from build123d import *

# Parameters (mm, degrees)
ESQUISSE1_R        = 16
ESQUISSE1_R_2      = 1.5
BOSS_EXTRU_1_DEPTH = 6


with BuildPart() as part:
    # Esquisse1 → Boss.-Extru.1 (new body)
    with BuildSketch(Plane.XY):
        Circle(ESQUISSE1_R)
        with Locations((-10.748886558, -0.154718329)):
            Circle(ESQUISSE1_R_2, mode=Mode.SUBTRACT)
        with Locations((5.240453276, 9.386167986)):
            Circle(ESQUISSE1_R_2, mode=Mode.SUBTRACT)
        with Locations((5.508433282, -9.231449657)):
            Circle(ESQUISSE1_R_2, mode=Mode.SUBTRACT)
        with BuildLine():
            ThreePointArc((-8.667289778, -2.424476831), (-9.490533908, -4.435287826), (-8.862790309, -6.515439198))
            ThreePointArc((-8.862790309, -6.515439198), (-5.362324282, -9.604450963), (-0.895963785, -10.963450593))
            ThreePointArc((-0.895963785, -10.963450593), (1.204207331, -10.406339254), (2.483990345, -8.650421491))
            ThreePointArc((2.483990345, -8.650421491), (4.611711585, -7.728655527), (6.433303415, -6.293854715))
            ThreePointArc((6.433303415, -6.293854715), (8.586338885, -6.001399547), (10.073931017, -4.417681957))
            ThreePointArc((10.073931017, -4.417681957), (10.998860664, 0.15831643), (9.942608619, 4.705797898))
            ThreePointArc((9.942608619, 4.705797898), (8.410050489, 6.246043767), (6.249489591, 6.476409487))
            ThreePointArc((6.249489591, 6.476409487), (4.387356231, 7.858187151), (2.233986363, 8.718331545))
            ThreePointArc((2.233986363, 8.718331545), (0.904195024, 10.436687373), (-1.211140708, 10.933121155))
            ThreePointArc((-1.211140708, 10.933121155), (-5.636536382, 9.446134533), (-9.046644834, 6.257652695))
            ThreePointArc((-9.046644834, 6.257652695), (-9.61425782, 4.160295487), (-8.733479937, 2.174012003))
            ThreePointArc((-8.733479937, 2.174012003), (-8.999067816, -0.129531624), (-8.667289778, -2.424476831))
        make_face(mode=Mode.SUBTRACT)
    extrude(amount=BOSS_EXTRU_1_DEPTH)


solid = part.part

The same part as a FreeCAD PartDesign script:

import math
import FreeCAD as App
import Part
import Sketcher

V = App.Vector

doc = App.newDocument("Part")
params = doc.addObject("Spreadsheet::Sheet", "Params")
for row, (alias, value) in enumerate([
    ("sketch1_diameter", "32 mm"),
    ("sketch1_diameter2", "3 mm"),
    ("sketch1_radius", "9 mm"),
    ("sketch1_radius2", "11 mm"),
    ("sketch1_radius3", "3.25 mm"),
    ("pad1_length", "6 mm"),
], start=1):
    params.set(f"A{row}", alias)
    params.set(f"B{row}", "=" + value)
    params.setAlias(f"B{row}", alias)

body = doc.addObject("PartDesign::Body", "Body")

# Sketch on XY plane
sketch1 = body.newObject("Sketcher::SketchObject", "Sketch")
sketch1.AttachmentSupport = (doc.getObject("XY_Plane"), [""])
sketch1.MapMode = "FlatFace"
sketch1.addGeometry(Part.Circle(V(0, 0, 0), V(0, 0, 1), 16), False)
sketch1.addGeometry(Part.Circle(V(-10.7, -0.2, 0), V(0, 0, 1), 1.5), False)
sketch1.addGeometry(Part.Circle(V(5.5, -9.2, 0), V(0, 0, 1), 1.5), False)
sketch1.addGeometry(Part.ArcOfCircle(Part.Circle(V(-6.2, -4.6, 0), V(0, 0, 1), 3.3), math.radians(138), math.radians(216)), False)
sketch1.addGeometry(Part.ArcOfCircle(Part.Circle(V(0, 0, 0), V(0, 0, 1), 9), math.radians(166), math.radians(196)), False)
sketch1.addGeometry(Part.ArcOfCircle(Part.Circle(V(-6.4, 4.4, 0), V(0, 0, 1), 3.2), math.radians(145), math.radians(223)), False)
sketch1.addGeometry(Part.ArcOfCircle(Part.Circle(V(0, 0, 0), V(0, 0, 1), 11), math.radians(96), math.radians(145)), False)
sketch1.addGeometry(Part.ArcOfCircle(Part.Circle(V(-0.9, 7.7, 0), V(0, 0, 1), 3.2), math.radians(18), math.radians(96)), False)
sketch1.addGeometry(Part.ArcOfCircle(Part.Circle(V(0, 0, 0), V(0, 0, 1), 9), math.radians(46), math.radians(76)), False)
sketch1.addGeometry(Part.ArcOfCircle(Part.Circle(V(7, 3.3, 0), V(0, 0, 1), 3.2), math.radians(25), math.radians(103)), False)
sketch1.addGeometry(Part.ArcOfCircle(Part.Circle(V(0, 0, 0), V(0, 0, 1), 11), math.radians(-24), math.radians(25)), False)
sketch1.addGeometry(Part.ArcOfCircle(Part.Circle(V(7.1, -3.1, 0), V(0, 0, 1), 3.3), math.radians(-102), math.radians(-24)), False)
sketch1.addGeometry(Part.ArcOfCircle(Part.Circle(V(0, 0, 0), V(0, 0, 1), 9), math.radians(-74), math.radians(-44)), False)
sketch1.addGeometry(Part.ArcOfCircle(Part.Circle(V(-0.6, -7.7, 0), V(0, 0, 1), 3.2), math.radians(-95), math.radians(-17)), False)
sketch1.addGeometry(Part.ArcOfCircle(Part.Circle(V(0, 0, 0), V(0, 0, 1), 11), math.radians(-144), math.radians(-95)), False)
sketch1.addGeometry(Part.Circle(V(5.2, 9.4, 0), V(0, 0, 1), 1.5), False)
sketch1.addConstraint(Sketcher.Constraint("Coincident", 3, 1, 4, 2))
sketch1.addConstraint(Sketcher.Constraint("Coincident", 4, 1, 5, 2))
sketch1.addConstraint(Sketcher.Constraint("Tangent", 5, 1, 6, 2))
sketch1.addConstraint(Sketcher.Constraint("Tangent", 6, 1, 7, 2))
sketch1.addConstraint(Sketcher.Constraint("Coincident", 7, 1, 8, 2))
sketch1.addConstraint(Sketcher.Constraint("Coincident", 8, 1, 9, 2))
sketch1.addConstraint(Sketcher.Constraint("Tangent", 9, 1, 10, 2))
sketch1.addConstraint(Sketcher.Constraint("Tangent", 10, 1, 11, 2))
sketch1.addConstraint(Sketcher.Constraint("Coincident", 11, 1, 12, 2))
sketch1.addConstraint(Sketcher.Constraint("Coincident", 12, 1, 13, 2))
sketch1.addConstraint(Sketcher.Constraint("Tangent", 13, 1, 14, 2))
sketch1.addConstraint(Sketcher.Constraint("Tangent", 14, 1, 3, 2))
sketch1.addConstraint(Sketcher.Constraint("Coincident", 0, 3, -1, 1))
sketch1.addConstraint(Sketcher.Constraint("Coincident", 4, 3, -1, 1))
sketch1.addConstraint(Sketcher.Constraint("Coincident", 6, 3, -1, 1))
sketch1.addConstraint(Sketcher.Constraint("Coincident", 8, 3, -1, 1))
sketch1.addConstraint(Sketcher.Constraint("Coincident", 10, 3, -1, 1))
sketch1.addConstraint(Sketcher.Constraint("Coincident", 12, 3, -1, 1))
sketch1.addConstraint(Sketcher.Constraint("Coincident", 14, 3, -1, 1))
sketch1.addConstraint(Sketcher.Constraint("Equal", 1, 2))
sketch1.addConstraint(Sketcher.Constraint("Equal", 3, 5))
sketch1.addConstraint(Sketcher.Constraint("Equal", 5, 7))
sketch1.addConstraint(Sketcher.Constraint("Equal", 4, 8))
sketch1.addConstraint(Sketcher.Constraint("Equal", 7, 9))
sketch1.addConstraint(Sketcher.Constraint("Equal", 6, 10))
sketch1.addConstraint(Sketcher.Constraint("Equal", 9, 11))
sketch1.addConstraint(Sketcher.Constraint("Equal", 8, 12))
sketch1.addConstraint(Sketcher.Constraint("Equal", 11, 13))
sketch1.addConstraint(Sketcher.Constraint("Equal", 10, 14))
sketch1.addConstraint(Sketcher.Constraint("Equal", 2, 15))
sketch1.addConstraint(Sketcher.Constraint("Diameter", 0, 32.0))
sketch1.addConstraint(Sketcher.Constraint("Diameter", 1, 3.0))
sketch1.addConstraint(Sketcher.Constraint("Radius", 4, 9.0))
sketch1.addConstraint(Sketcher.Constraint("Radius", 6, 11.0))
sketch1.addConstraint(Sketcher.Constraint("Radius", 3, 3.25))
sketch1.addConstraint(Sketcher.Constraint("DistanceY", 13, 1, 2, 3, 1.732001))
sketch1.addConstraint(Sketcher.Constraint("DistanceY", -1, 1, 5, 3, 4.408801))
sketch1.addConstraint(Sketcher.Constraint("DistanceY", 1, 3, 7, 3, 7.857599))
sketch1.addConstraint(Sketcher.Constraint("DistanceY", 2, 3, 13, 3, 1.5072))
sketch1.addConstraint(Sketcher.Constraint("DistanceX", 14, 1, 3, 1, 0.195501))
sketch1.addConstraint(Sketcher.Constraint("DistanceY", 1, 3, -1, 1, 0.154718))
sketch1.addConstraint(Sketcher.Constraint("DistanceX", -1, 1, 9, 3, 7.00502))
sketch1.addConstraint(Sketcher.Constraint("DistanceX", -1, 1, 10, 1, 10.073931))
sketch1.addConstraint(Sketcher.Constraint("DistanceX", 1, 3, 2, 3, 16.25732))
sketch1.addConstraint(Sketcher.Constraint("DistanceX", 3, 3, 2, 3, 11.752672))
sketch1.addConstraint(Sketcher.Constraint("DistanceY", 9, 3, 15, 3, 6.070719))
sketch1.addConstraint(Sketcher.Constraint("DistanceX", -1, 1, 15, 3, 5.240453))
sketch1.setExpression("Constraints[30]", "Params.sketch1_diameter")
sketch1.setExpression("Constraints[31]", "Params.sketch1_diameter2")
sketch1.setExpression("Constraints[32]", "Params.sketch1_radius")
sketch1.setExpression("Constraints[33]", "Params.sketch1_radius2")
sketch1.setExpression("Constraints[34]", "Params.sketch1_radius3")
pad1 = body.newObject("PartDesign::Pad", "Pad")
pad1.Profile = sketch1
pad1.setExpression("Length", "Params.pad1_length")

doc.recompute()
